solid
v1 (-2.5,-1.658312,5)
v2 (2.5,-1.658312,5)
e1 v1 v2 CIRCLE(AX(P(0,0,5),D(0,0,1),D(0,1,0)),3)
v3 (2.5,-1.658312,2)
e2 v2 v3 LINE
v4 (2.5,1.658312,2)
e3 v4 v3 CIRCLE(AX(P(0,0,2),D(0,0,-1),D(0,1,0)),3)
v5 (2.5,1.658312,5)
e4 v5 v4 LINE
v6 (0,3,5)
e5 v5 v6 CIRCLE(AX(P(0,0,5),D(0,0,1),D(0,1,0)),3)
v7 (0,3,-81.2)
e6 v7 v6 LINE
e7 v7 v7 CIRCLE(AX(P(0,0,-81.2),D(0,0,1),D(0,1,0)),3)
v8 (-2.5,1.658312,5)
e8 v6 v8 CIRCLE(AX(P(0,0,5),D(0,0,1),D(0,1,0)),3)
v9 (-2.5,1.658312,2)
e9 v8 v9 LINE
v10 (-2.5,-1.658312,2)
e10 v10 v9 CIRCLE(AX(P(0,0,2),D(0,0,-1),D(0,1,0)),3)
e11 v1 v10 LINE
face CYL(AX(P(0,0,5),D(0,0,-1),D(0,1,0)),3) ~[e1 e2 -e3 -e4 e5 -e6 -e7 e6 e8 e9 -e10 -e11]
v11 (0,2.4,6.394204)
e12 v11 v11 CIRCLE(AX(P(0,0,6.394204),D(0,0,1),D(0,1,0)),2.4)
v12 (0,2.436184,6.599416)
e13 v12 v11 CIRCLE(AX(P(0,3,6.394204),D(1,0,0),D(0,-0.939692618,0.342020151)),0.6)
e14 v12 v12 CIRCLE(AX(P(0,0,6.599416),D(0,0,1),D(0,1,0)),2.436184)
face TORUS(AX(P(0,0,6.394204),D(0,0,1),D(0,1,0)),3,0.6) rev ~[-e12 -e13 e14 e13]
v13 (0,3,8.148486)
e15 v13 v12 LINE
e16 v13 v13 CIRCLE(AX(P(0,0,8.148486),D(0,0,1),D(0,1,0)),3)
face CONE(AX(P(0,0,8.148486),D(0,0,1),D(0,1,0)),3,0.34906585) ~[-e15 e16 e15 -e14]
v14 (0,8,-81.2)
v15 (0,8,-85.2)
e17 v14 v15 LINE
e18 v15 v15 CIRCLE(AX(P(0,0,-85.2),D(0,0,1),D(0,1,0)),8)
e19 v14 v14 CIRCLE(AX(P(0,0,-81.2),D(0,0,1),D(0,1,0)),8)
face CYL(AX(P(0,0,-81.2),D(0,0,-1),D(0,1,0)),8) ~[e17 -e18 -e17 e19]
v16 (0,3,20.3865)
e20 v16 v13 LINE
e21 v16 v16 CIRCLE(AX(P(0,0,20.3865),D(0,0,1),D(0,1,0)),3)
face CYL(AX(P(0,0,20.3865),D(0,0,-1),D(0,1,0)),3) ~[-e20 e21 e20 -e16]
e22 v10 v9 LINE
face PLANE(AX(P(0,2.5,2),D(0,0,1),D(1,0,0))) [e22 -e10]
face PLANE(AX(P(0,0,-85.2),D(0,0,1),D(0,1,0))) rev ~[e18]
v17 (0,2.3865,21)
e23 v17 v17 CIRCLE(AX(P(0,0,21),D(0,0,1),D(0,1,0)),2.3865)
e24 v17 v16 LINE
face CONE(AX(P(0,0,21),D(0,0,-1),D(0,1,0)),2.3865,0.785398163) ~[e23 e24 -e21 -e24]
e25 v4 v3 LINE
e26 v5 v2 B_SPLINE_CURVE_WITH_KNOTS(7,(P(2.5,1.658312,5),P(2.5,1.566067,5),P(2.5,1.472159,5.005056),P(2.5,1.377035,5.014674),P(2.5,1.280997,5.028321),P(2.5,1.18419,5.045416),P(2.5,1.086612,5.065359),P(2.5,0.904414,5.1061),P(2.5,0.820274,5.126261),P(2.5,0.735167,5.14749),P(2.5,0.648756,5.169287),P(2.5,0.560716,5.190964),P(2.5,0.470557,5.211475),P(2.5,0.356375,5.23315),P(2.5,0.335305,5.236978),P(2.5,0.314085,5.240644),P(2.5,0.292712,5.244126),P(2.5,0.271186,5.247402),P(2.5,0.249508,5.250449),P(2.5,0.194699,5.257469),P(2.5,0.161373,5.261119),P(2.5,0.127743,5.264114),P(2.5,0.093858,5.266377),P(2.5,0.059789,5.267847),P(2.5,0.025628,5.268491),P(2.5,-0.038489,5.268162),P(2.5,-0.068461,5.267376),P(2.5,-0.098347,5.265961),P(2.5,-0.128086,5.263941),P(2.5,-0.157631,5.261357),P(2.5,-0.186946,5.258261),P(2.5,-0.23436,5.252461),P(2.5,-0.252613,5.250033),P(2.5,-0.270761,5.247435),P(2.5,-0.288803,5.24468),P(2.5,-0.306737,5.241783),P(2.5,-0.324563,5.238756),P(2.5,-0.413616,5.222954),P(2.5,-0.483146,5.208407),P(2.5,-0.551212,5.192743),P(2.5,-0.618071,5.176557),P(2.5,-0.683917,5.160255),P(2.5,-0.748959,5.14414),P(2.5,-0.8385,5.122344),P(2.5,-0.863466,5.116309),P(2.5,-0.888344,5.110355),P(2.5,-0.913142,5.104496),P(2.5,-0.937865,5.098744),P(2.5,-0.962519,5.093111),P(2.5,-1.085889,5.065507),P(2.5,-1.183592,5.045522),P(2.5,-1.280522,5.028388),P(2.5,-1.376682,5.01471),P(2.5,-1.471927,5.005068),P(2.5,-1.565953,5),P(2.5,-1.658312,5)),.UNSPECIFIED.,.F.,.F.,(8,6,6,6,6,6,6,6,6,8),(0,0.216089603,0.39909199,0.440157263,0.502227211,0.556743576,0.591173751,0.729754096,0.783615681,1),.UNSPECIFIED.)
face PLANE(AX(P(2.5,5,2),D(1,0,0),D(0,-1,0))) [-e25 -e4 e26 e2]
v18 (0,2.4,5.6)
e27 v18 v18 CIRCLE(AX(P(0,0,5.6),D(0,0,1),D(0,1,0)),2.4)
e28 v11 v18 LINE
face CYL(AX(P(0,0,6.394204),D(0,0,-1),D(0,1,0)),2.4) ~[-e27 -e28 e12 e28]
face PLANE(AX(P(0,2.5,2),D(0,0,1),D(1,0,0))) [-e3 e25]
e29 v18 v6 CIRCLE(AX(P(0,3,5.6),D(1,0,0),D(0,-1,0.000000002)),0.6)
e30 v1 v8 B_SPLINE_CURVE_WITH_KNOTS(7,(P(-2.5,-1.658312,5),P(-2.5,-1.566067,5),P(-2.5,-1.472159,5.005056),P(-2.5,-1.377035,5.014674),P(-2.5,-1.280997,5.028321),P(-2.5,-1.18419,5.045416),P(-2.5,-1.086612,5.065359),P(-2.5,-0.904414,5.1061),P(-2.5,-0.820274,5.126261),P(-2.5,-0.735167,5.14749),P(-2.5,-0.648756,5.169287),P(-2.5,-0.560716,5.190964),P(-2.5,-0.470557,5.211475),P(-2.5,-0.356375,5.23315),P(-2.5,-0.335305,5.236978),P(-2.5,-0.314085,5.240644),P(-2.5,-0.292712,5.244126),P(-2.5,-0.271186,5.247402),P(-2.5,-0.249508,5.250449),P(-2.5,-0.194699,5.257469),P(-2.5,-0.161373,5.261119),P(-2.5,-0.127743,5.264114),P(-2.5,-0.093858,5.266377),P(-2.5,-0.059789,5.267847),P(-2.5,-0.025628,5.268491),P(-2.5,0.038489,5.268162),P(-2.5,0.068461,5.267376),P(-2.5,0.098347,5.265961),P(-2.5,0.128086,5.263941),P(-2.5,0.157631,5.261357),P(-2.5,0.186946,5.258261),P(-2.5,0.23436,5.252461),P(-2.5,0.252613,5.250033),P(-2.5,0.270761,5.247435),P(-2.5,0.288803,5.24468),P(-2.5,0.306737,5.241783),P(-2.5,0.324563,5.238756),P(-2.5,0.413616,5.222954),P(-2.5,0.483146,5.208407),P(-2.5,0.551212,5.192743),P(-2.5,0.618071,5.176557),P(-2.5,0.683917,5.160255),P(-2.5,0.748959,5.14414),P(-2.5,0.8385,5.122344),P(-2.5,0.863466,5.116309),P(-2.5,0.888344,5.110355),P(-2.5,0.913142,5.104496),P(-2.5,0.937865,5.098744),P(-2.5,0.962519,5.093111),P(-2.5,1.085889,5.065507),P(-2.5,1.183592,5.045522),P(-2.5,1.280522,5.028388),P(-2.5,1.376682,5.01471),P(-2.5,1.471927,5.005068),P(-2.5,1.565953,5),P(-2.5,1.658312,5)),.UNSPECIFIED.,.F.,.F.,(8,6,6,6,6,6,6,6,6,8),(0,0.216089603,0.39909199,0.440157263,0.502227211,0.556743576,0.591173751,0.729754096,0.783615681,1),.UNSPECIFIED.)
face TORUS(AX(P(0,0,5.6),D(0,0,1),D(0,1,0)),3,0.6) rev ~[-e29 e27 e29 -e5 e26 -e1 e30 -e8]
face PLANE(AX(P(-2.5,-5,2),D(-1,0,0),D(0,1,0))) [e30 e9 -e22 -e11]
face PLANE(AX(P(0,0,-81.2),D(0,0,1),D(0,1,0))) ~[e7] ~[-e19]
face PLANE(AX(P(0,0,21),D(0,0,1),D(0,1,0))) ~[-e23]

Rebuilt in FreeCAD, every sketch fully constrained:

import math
import FreeCAD as App
import Part
import Sketcher
from FreeCAD import Vector
Q = App.Units.Quantity

doc = App.newDocument("Part")
params = doc.addObject("Spreadsheet::Sheet", "Params")
for row, (alias, value) in enumerate([
    ("sketch1_width", "3 mm"),
    ("sketch1_width2", "8 mm"),
    ("sketch1_height", "4 mm"),
    ("sketch1_height2", "90.2 mm"),
    ("revolution_angle", "360 deg"),
    ("sketch2_radius", "0.6 mm"),
    ("sketch2_width", "3 mm"),
    ("sketch2_height", "17 mm"),
    ("sketch2_height2", "1 mm"),
    ("revolution2_angle", "360 deg"),
    ("sketch3_width", "5 mm"),
    ("sketch3_width2", "10 mm"),
    ("sketch3_height", "15 mm"),
    ("pocket1_length", "4 mm"),
], start=1):
    params.set(f"A{row}", alias)
    params.set(f"B{row}", "=" + value)
    params.setAlias(f"B{row}", alias)

body = doc.addObject("PartDesign::Body", "Body")

# Sketch on YZ plane
sketch1 = body.newObject("Sketcher::SketchObject", "Sketch")
sketch1.AttachmentSupport = (doc.getObject("YZ_Plane"), [""])
sketch1.MapMode = "FlatFace"
sketch1.addGeometry(Part.LineSegment(Vector(3, 5, 0), Vector(0, 5, 0)), False)
sketch1.addGeometry(Part.LineSegment(Vector(0, 5, 0), Vector(0, -85.2, 0)), False)
sketch1.addGeometry(Part.LineSegment(Vector(0, -85.2, 0), Vector(8, -85.2, 0)), False)
sketch1.addGeometry(Part.LineSegment(Vector(8, -85.2, 0), Vector(8, -81.2, 0)), False)
sketch1.addGeometry(Part.LineSegment(Vector(8, -81.2, 0), Vector(3, -81.2, 0)), False)
sketch1.addGeometry(Part.LineSegment(Vector(3, -81.2, 0), Vector(3, 5, 0)), False)
sketch1.addConstraint(Sketcher.Constraint("Coincident", 0, 2, 1, 1))
sketch1.addConstraint(Sketcher.Constraint("Coincident", 1, 2, 2, 1))
sketch1.addConstraint(Sketcher.Constraint("Coincident", 2, 2, 3, 1))
sketch1.addConstraint(Sketcher.Constraint("Coincident", 3, 2, 4, 1))
sketch1.addConstraint(Sketcher.Constraint("Coincident", 4, 2, 5, 1))
sketch1.addConstraint(Sketcher.Constraint("Coincident", 5, 2, 0, 1))
sketch1.addConstraint(Sketcher.Constraint("Horizontal", 0))
sketch1.addConstraint(Sketcher.Constraint("Vertical", 1))
sketch1.addConstraint(Sketcher.Constraint("Horizontal", 2))
sketch1.addConstraint(Sketcher.Constraint("Vertical", 3))
sketch1.addConstraint(Sketcher.Constraint("Horizontal", 4))
sketch1.addConstraint(Sketcher.Constraint("Vertical", 5))
sketch1.addConstraint(Sketcher.Constraint("PointOnObject", 0, 2, -2))
sketch1.addConstraint(Sketcher.Constraint("DistanceX", 0, 2, 0, 1, Q("3 mm")))
sketch1.addConstraint(Sketcher.Constraint("DistanceX", 2, 1, 2, 2, Q("8 mm")))
sketch1.addConstraint(Sketcher.Constraint("DistanceY", 3, 1, 3, 2, Q("4 mm")))
sketch1.addConstraint(Sketcher.Constraint("DistanceY", 1, 2, 1, 1, Q("90.2 mm")))
sketch1.addConstraint(Sketcher.Constraint("DistanceY", -1, 1, 0, 2, Q("5 mm")))
sketch1.setExpression("Constraints[13]", "Params.sketch1_width")
sketch1.setExpression("Constraints[14]", "Params.sketch1_width2")
sketch1.setExpression("Constraints[15]", "Params.sketch1_height")
sketch1.setExpression("Constraints[16]", "Params.sketch1_height2")
revolution = body.newObject("PartDesign::Revolution", "Revolution")
revolution.Profile = sketch1
revolution.ReferenceAxis = (sketch1, ["V_Axis"])
revolution.setExpression("Angle", "Params.revolution_angle")

# Sketch on YZ plane
sketch2 = body.newObject("Sketcher::SketchObject", "Sketch001")
sketch2.AttachmentSupport = (doc.getObject("YZ_Plane"), [""])
sketch2.MapMode = "FlatFace"
sketch2.addGeometry(Part.LineSegment(Vector(2.39, 21, 0), Vector(0, 21, 0)), False)
sketch2.addGeometry(Part.LineSegment(Vector(0, 21, 0), Vector(0, 4, 0)), False)
sketch2.addGeometry(Part.LineSegment(Vector(0, 4, 0), Vector(3, 4, 0)), False)
sketch2.addGeometry(Part.LineSegment(Vector(3, 4, 0), Vector(3, 5, 0)), False)
sketch2.addGeometry(Part.ArcOfCircle(Part.Circle(Vector(3, 5.6, 0), Vector(0, 0, 1), 0.6), math.radians(180), math.radians(270)), False)
sketch2.addGeometry(Part.LineSegment(Vector(2.4, 5.6, 0), Vector(2.4, 6.39, 0)), False)
sketch2.addGeometry(Part.ArcOfCircle(Part.Circle(Vector(3, 6.39, 0), Vector(0, 0, 1), 0.6), math.radians(160), math.radians(180)), False)
sketch2.addGeometry(Part.LineSegment(Vector(2.44, 6.6, 0), Vector(3, 8.15, 0)), False)
sketch2.addGeometry(Part.LineSegment(Vector(3, 8.15, 0), Vector(3, 20.39, 0)), False)
sketch2.addGeometry(Part.LineSegment(Vector(3, 20.39, 0), Vector(2.39, 21, 0)), False)
sketch2.addConstraint(Sketcher.Constraint("Coincident", 0, 2, 1, 1))
sketch2.addConstraint(Sketcher.Constraint("Coincident", 1, 2, 2, 1))
sketch2.addConstraint(Sketcher.Constraint("Coincident", 2, 2, 3, 1))
sketch2.addConstraint(Sketcher.Constraint("Coincident", 3, 2, 4, 2))
sketch2.addConstraint(Sketcher.Constraint("Tangent", 4, 1, 5, 1))
sketch2.addConstraint(Sketcher.Constraint("Tangent", 5, 2, 6, 2))
sketch2.addConstraint(Sketcher.Constraint("Tangent", 6, 1, 7, 1))
sketch2.addConstraint(Sketcher.Constraint("Coincident", 7, 2, 8, 1))
sketch2.addConstraint(Sketcher.Constraint("Coincident", 8, 2, 9, 1))
sketch2.addConstraint(Sketcher.Constraint("Coincident", 9, 2, 0, 1))
sketch2.addConstraint(Sketcher.Constraint("Horizontal", 0))
sketch2.addConstraint(Sketcher.Constraint("Vertical", 1))
sketch2.addConstraint(Sketcher.Constraint("Horizontal", 2))
sketch2.addConstraint(Sketcher.Constraint("Vertical", 3))
sketch2.addConstraint(Sketcher.Constraint("Vertical", 5))
sketch2.addConstraint(Sketcher.Constraint("Vertical", 8))
sketch2.addConstraint(Sketcher.Constraint("Equal", 4, 6))
sketch2.addConstraint(Sketcher.Constraint("PointOnObject", 0, 2, -2))
sketch2.addConstraint(Sketcher.Constraint("Vertical", 6, 3, 2, 2))
sketch2.addConstraint(Sketcher.Constraint("Vertical", 3, 2, 7, 2))
sketch2.addConstraint(Sketcher.Constraint("Radius", 4, Q("0.6 mm")))
sketch2.addConstraint(Sketcher.Constraint("DistanceX", 2, 1, 2, 2, Q("3 mm")))
sketch2.addConstraint(Sketcher.Constraint("DistanceY", 1, 2, 1, 1, Q("17 mm")))
sketch2.addConstraint(Sketcher.Constraint("DistanceY", 3, 1, 3, 2, Q("1 mm")))
sketch2.addConstraint(Sketcher.Constraint("Angle", 7, Q("70 deg")))
sketch2.addConstraint(Sketcher.Constraint("Angle", 9, Q("135 deg")))
sketch2.addConstraint(Sketcher.Constraint("DistanceY", -1, 1, 0, 2, Q("21 mm")))
sketch2.addConstraint(Sketcher.Constraint("DistanceX", 0, 2, 0, 1, Q("2.3865 mm")))
sketch2.addConstraint(Sketcher.Constraint("DistanceY", 5, 1, 5, 2, Q("0.794204 mm")))
sketch2.setExpression("Constraints[20]", "Params.sketch2_radius")
sketch2.setExpression("Constraints[21]", "Params.sketch2_width")
sketch2.setExpression("Constraints[22]", "Params.sketch2_height")
sketch2.setExpression("Constraints[23]", "Params.sketch2_height2")
revolution2 = body.newObject("PartDesign::Revolution", "Revolution001")
revolution2.Profile = sketch2
revolution2.ReferenceAxis = (sketch2, ["V_Axis"])
revolution2.setExpression("Angle", "Params.revolution2_angle")

# Sketch on XY plane
sketch3 = body.newObject("Sketcher::SketchObject", "Sketch002")
sketch3.AttachmentSupport = (doc.getObject("XY_Plane"), [""])
sketch3.MapMode = "FlatFace"
sketch3.AttachmentOffset = App.Placement(Vector(0, 0, 2), App.Rotation())
sketch3.addGeometry(Part.LineSegment(Vector(-5, 10, 0), Vector(-5, -5, 0)), False)
sketch3.addGeometry(Part.LineSegment(Vector(-5, -5, 0), Vector(-2.5, -5, 0)), False)
sketch3.addGeometry(Part.LineSegment(Vector(-2.5, -5, 0), Vector(-2.5, 5, 0)), False)
sketch3.addGeometry(Part.LineSegment(Vector(-2.5, 5, 0), Vector(2.5, 5, 0)), False)
sketch3.addGeometry(Part.LineSegment(Vector(2.5, 5, 0), Vector(2.5, -5, 0)), False)
sketch3.addGeometry(Part.LineSegment(Vector(2.5, -5, 0), Vector(5, -5, 0)), False)
sketch3.addGeometry(Part.LineSegment(Vector(5, -5, 0), Vector(5, 10, 0)), False)
sketch3.addGeometry(Part.LineSegment(Vector(5, 10, 0), Vector(-5, 10, 0)), False)
sketch3.addConstraint(Sketcher.Constraint("Coincident", 0, 2, 1, 1))
sketch3.addConstraint(Sketcher.Constraint("Coincident", 1, 2, 2, 1))
sketch3.addConstraint(Sketcher.Constraint("Coincident", 2, 2, 3, 1))
sketch3.addConstraint(Sketcher.Constraint("Coincident", 3, 2, 4, 1))
sketch3.addConstraint(Sketcher.Constraint("Coincident", 4, 2, 5, 1))
sketch3.addConstraint(Sketcher.Constraint("Coincident", 5, 2, 6, 1))
sketch3.addConstraint(Sketcher.Constraint("Coincident", 6, 2, 7, 1))
sketch3.addConstraint(Sketcher.Constraint("Coincident", 7, 2, 0, 1))
sketch3.addConstraint(Sketcher.Constraint("Vertical", 0))
sketch3.addConstraint(Sketcher.Constraint("Horizontal", 1))
sketch3.addConstraint(Sketcher.Constraint("Vertical", 2))
sketch3.addConstraint(Sketcher.Constraint("Horizontal", 3))
sketch3.addConstraint(Sketcher.Constraint("Vertical", 4))
sketch3.addConstraint(Sketcher.Constraint("Horizontal", 5))
sketch3.addConstraint(Sketcher.Constraint("Vertical", 6))
sketch3.addConstraint(Sketcher.Constraint("Horizontal", 7))
sketch3.addConstraint(Sketcher.Constraint("Symmetric", 1, 2, 3, 2, -1, 1))
sketch3.addConstraint(Sketcher.Constraint("Symmetric", 0, 2, 5, 2, -2))
sketch3.addConstraint(Sketcher.Constraint("Equal", 7, 2))
sketch3.addConstraint(Sketcher.Constraint("DistanceX", 3, 1, 3, 2, Q("5 mm")))
sketch3.addConstraint(Sketcher.Constraint("DistanceX", 7, 2, 7, 1, Q("10 mm")))
sketch3.addConstraint(Sketcher.Constraint("DistanceY", 0, 2, 0, 1, Q("15 mm")))
sketch3.setExpression("Constraints[19]", "Params.sketch3_width")
sketch3.setExpression("Constraints[20]", "Params.sketch3_width2")
sketch3.setExpression("Constraints[21]", "Params.sketch3_height")
pocket1 = body.newObject("PartDesign::Pocket", "Pocket")
pocket1.Profile = sketch3
pocket1.setExpression("Length", "Params.pocket1_length")
pocket1.Reversed = True

doc.recompute()
